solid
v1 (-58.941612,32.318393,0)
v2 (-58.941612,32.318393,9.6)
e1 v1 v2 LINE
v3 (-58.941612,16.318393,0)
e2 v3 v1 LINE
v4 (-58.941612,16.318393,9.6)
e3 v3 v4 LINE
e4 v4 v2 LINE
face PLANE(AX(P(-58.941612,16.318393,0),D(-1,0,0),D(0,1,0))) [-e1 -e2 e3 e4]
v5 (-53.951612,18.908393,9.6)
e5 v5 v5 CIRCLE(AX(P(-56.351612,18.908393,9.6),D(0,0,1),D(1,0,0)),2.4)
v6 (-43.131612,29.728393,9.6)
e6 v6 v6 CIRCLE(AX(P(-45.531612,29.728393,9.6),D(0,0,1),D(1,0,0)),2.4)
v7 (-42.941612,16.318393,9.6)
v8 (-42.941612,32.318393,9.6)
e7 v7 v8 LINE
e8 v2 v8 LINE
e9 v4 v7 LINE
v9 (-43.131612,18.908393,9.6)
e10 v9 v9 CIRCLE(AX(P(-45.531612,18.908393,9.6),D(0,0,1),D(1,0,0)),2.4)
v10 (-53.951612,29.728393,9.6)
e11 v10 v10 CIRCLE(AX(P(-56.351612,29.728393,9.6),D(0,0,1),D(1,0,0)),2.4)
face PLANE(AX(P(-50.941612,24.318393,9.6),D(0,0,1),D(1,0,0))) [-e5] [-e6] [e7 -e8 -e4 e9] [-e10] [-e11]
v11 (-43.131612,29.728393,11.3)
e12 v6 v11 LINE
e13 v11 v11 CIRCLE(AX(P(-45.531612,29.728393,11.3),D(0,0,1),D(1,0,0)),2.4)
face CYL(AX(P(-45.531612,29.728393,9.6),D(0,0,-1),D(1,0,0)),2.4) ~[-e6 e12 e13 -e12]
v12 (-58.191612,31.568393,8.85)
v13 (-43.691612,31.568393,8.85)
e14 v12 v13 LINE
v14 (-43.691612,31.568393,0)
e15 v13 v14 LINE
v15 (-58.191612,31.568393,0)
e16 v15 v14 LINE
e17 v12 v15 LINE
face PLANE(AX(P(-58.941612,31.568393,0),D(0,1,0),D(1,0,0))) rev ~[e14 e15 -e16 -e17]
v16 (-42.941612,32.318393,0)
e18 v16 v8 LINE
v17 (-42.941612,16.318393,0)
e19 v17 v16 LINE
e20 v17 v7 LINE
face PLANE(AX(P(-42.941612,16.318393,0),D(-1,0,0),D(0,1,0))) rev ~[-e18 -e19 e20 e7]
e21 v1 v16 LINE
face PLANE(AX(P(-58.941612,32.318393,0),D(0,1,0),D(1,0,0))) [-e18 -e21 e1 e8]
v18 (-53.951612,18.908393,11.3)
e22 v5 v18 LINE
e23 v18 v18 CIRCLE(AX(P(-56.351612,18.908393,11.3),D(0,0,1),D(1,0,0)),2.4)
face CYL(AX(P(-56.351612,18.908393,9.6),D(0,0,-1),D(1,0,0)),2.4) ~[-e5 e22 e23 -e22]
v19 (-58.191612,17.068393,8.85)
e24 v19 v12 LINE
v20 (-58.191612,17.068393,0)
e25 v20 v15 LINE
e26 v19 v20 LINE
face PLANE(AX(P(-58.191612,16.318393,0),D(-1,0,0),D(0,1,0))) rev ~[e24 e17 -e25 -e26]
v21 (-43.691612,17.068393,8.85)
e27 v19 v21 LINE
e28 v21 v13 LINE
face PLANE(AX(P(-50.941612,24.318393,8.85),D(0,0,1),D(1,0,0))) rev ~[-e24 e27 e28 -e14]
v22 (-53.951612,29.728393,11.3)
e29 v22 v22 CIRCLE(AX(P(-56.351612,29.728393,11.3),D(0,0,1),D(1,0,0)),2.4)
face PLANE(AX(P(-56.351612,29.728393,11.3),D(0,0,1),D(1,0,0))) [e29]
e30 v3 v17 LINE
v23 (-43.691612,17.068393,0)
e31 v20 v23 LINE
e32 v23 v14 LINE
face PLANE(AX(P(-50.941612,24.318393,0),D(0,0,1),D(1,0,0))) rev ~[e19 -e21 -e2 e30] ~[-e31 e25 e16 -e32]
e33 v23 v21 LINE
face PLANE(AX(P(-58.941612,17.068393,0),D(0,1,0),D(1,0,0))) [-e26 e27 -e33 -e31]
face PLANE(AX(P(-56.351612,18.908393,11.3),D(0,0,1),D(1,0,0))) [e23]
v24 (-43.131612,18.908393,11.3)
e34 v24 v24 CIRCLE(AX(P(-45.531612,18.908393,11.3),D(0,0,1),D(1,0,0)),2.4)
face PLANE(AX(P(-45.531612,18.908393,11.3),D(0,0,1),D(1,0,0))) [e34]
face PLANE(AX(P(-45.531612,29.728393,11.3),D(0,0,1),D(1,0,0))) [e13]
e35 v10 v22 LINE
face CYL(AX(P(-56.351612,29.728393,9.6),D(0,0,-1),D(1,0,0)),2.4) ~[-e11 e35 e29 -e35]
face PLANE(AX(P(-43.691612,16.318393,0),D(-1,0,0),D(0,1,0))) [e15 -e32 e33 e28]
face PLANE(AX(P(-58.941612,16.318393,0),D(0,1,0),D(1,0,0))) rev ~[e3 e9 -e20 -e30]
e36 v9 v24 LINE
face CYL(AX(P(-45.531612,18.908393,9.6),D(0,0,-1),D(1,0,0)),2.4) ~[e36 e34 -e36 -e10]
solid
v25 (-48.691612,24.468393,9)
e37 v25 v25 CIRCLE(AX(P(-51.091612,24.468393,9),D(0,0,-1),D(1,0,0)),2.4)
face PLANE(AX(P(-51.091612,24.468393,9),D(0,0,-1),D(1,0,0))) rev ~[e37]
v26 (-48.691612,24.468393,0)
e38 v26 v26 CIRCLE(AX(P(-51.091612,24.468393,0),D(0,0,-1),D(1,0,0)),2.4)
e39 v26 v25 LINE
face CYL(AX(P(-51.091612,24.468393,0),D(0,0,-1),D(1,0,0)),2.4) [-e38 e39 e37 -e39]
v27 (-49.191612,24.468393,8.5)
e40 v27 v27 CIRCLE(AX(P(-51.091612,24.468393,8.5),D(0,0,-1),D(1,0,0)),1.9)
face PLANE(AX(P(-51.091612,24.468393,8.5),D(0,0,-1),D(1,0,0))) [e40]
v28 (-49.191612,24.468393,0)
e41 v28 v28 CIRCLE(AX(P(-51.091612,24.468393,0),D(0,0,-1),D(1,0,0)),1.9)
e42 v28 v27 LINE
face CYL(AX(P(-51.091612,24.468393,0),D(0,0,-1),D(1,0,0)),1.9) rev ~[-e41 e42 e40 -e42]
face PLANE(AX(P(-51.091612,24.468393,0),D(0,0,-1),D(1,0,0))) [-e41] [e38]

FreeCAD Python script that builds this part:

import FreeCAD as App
import Part
import Sketcher
Q = App.Units.Quantity


def faces_at(feature, points):
    """Names of the faces that lie closest to the given points."""
    faces = feature.Shape.Faces
    near = lambda p: min(range(len(faces)), key=lambda i: faces[i].distToShape(Part.Vertex(*p))[0])
    return sorted({f"Face{near(p) + 1}" for p in points})

doc = App.newDocument("Part")
body = doc.addObject("PartDesign::Body", "Body")

# Sketch on XY plane
sketch1 = doc.addObject("Sketcher::SketchObject", "Sketch")
body.addObject(sketch1)
sketch1.AttachmentSupport = (doc.XY_Plane, [""])
sketch1.MapMode = "FlatFace"
sketch1.addGeometry([
    Part.LineSegment(App.Vector(-58.941612, 32.318393, 0), App.Vector(-58.941612, 16.318393, 0)),
    Part.LineSegment(App.Vector(-58.941612, 16.318393, 0), App.Vector(-42.941612, 16.318393, 0)),
    Part.LineSegment(App.Vector(-42.941612, 16.318393, 0), App.Vector(-42.941612, 32.318393, 0)),
    Part.LineSegment(App.Vector(-42.941612, 32.318393, 0), App.Vector(-58.941612, 32.318393, 0)),
], False)
sketch1.addConstraint([
    Sketcher.Constraint("Coincident", 0, 2, 1, 1),
    Sketcher.Constraint("Coincident", 1, 2, 2, 1),
    Sketcher.Constraint("Coincident", 2, 2, 3, 1),
    Sketcher.Constraint("Coincident", 3, 2, 0, 1),
    Sketcher.Constraint("Vertical", 0),
    Sketcher.Constraint("Horizontal", 1),
    Sketcher.Constraint("Vertical", 2),
    Sketcher.Constraint("Horizontal", 3),
    Sketcher.Constraint("Equal", 3, 0),
    Sketcher.Constraint("DistanceX", 1, 1, 1, 2, Q("16 mm")),
    Sketcher.Constraint("DistanceX", 0, 2, -1, 1, Q("58.941612 mm")),
    Sketcher.Constraint("DistanceY", -1, 1, 0, 2, Q("16.318393 mm")),
])
pad1 = doc.addObject("PartDesign::Pad", "Pad")
body.addObject(pad1)
pad1.Profile = sketch1
pad1.Length = 9.6
doc.recompute()

thickness = doc.addObject("PartDesign::Thickness", "Thickness")
body.addObject(thickness)
thickness.Base = (pad1, faces_at(pad1, [(-50.942, 24.318, 0)]))
thickness.Value = 0.75
thickness.Reversed = True
thickness.Join = "Arc"

# Sketch on XY plane
sketch2 = doc.addObject("Sketcher::SketchObject", "Sketch001")
body.addObject(sketch2)
sketch2.AttachmentSupport = (doc.XY_Plane, [""])
sketch2.MapMode = "FlatFace"
sketch2.AttachmentOffset = App.Placement(App.Vector(0, 0, 9.6), App.Rotation())
sketch2.addGeometry(Part.Circle(App.Vector(-56.351612, 29.728393, 0), App.Vector(0, 0, 1), 2.4), False)
sketch2.addConstraint([
    Sketcher.Constraint("Diameter", 0, Q("4.8 mm")),
    Sketcher.Constraint("DistanceX", 0, 3, -1, 1, Q("56.351612 mm")),
    Sketcher.Constraint("DistanceY", -1, 1, 0, 3, Q("29.728393 mm")),
])
pad2 = doc.addObject("PartDesign::Pad", "Pad001")
body.addObject(pad2)
pad2.Profile = sketch2
pad2.Length = 1.7

# Sketch on XY plane
sketch3 = doc.addObject("Sketcher::SketchObject", "Sketch002")
body.addObject(sketch3)
sketch3.AttachmentSupport = (doc.XY_Plane, [""])
sketch3.MapMode = "FlatFace"
sketch3.AttachmentOffset = App.Placement(App.Vector(0, 0, 9.6), App.Rotation())
sketch3.addGeometry(Part.Circle(App.Vector(-45.531612, 29.728393, 0), App.Vector(0, 0, 1), 2.4), False)
sketch3.addConstraint([
    Sketcher.Constraint("Diameter", 0, Q("4.8 mm")),
    Sketcher.Constraint("DistanceX", 0, 3, -1, 1, Q("45.531612 mm")),
    Sketcher.Constraint("DistanceY", -1, 1, 0, 3, Q("29.728393 mm")),
])
pad3 = doc.addObject("PartDesign::Pad", "Pad002")
body.addObject(pad3)
pad3.Profile = sketch3
pad3.Length = 1.7

# Sketch on XY plane
sketch4 = doc.addObject("Sketcher::SketchObject", "Sketch003")
body.addObject(sketch4)
sketch4.AttachmentSupport = (doc.XY_Plane, [""])
sketch4.MapMode = "FlatFace"
sketch4.AttachmentOffset = App.Placement(App.Vector(0, 0, 9.6), App.Rotation())
sketch4.addGeometry(Part.Circle(App.Vector(-56.351612, 18.908393, 0), App.Vector(0, 0, 1), 2.4), False)
sketch4.addConstraint([
    Sketcher.Constraint("Diameter", 0, Q("4.8 mm")),
    Sketcher.Constraint("DistanceX", 0, 3, -1, 1, Q("56.351612 mm")),
    Sketcher.Constraint("DistanceY", -1, 1, 0, 3, Q("18.908393 mm")),
])
pad4 = doc.addObject("PartDesign::Pad", "Pad003")
body.addObject(pad4)
pad4.Profile = sketch4
pad4.Length = 1.7

# Sketch on XY plane
sketch5 = doc.addObject("Sketcher::SketchObject", "Sketch004")
body.addObject(sketch5)
sketch5.AttachmentSupport = (doc.XY_Plane, [""])
sketch5.MapMode = "FlatFace"
sketch5.AttachmentOffset = App.Placement(App.Vector(0, 0, 9.6), App.Rotation())
sketch5.addGeometry(Part.Circle(App.Vector(-45.531612, 18.908393, 0), App.Vector(0, 0, 1), 2.4), False)
sketch5.addConstraint([
    Sketcher.Constraint("Diameter", 0, Q("4.8 mm")),
    Sketcher.Constraint("DistanceX", 0, 3, -1, 1, Q("45.531612 mm")),
    Sketcher.Constraint("DistanceY", -1, 1, 0, 3, Q("18.908393 mm")),
])
pad5 = doc.addObject("PartDesign::Pad", "Pad004")
body.addObject(pad5)
pad5.Profile = sketch5
pad5.Length = 1.7
body2 = doc.addObject("PartDesign::Body", "Body001")

# Sketch on XY plane
sketch6 = doc.addObject("Sketcher::SketchObject", "Sketch005")
body2.addObject(sketch6)
sketch6.AttachmentSupport = (doc.getObject("XY_Plane001"), [""])
sketch6.MapMode = "FlatFace"
sketch6.addGeometry(Part.Circle(App.Vector(-51.091612, 24.468393, 0), App.Vector(0, 0, 1), 2.4), False)
sketch6.addConstraint([
    Sketcher.Constraint("Diameter", 0, Q("4.8 mm")),
    Sketcher.Constraint("DistanceX", 0, 3, -1, 1, Q("51.091612 mm")),
    Sketcher.Constraint("DistanceY", -1, 1, 0, 3, Q("24.468393 mm")),
])
pad6 = doc.addObject("PartDesign::Pad", "Pad005")
body2.addObject(pad6)
pad6.Profile = sketch6
pad6.Length = 9
doc.recompute()

thickness2 = doc.addObject("PartDesign::Thickness", "Thickness001")
body2.addObject(thickness2)
thickness2.Base = (pad6, faces_at(pad6, [(-51.092, 24.468, 0)]))
thickness2.Value = 0.5
thickness2.Reversed = True
thickness2.Join = "Arc"

doc.recompute()
